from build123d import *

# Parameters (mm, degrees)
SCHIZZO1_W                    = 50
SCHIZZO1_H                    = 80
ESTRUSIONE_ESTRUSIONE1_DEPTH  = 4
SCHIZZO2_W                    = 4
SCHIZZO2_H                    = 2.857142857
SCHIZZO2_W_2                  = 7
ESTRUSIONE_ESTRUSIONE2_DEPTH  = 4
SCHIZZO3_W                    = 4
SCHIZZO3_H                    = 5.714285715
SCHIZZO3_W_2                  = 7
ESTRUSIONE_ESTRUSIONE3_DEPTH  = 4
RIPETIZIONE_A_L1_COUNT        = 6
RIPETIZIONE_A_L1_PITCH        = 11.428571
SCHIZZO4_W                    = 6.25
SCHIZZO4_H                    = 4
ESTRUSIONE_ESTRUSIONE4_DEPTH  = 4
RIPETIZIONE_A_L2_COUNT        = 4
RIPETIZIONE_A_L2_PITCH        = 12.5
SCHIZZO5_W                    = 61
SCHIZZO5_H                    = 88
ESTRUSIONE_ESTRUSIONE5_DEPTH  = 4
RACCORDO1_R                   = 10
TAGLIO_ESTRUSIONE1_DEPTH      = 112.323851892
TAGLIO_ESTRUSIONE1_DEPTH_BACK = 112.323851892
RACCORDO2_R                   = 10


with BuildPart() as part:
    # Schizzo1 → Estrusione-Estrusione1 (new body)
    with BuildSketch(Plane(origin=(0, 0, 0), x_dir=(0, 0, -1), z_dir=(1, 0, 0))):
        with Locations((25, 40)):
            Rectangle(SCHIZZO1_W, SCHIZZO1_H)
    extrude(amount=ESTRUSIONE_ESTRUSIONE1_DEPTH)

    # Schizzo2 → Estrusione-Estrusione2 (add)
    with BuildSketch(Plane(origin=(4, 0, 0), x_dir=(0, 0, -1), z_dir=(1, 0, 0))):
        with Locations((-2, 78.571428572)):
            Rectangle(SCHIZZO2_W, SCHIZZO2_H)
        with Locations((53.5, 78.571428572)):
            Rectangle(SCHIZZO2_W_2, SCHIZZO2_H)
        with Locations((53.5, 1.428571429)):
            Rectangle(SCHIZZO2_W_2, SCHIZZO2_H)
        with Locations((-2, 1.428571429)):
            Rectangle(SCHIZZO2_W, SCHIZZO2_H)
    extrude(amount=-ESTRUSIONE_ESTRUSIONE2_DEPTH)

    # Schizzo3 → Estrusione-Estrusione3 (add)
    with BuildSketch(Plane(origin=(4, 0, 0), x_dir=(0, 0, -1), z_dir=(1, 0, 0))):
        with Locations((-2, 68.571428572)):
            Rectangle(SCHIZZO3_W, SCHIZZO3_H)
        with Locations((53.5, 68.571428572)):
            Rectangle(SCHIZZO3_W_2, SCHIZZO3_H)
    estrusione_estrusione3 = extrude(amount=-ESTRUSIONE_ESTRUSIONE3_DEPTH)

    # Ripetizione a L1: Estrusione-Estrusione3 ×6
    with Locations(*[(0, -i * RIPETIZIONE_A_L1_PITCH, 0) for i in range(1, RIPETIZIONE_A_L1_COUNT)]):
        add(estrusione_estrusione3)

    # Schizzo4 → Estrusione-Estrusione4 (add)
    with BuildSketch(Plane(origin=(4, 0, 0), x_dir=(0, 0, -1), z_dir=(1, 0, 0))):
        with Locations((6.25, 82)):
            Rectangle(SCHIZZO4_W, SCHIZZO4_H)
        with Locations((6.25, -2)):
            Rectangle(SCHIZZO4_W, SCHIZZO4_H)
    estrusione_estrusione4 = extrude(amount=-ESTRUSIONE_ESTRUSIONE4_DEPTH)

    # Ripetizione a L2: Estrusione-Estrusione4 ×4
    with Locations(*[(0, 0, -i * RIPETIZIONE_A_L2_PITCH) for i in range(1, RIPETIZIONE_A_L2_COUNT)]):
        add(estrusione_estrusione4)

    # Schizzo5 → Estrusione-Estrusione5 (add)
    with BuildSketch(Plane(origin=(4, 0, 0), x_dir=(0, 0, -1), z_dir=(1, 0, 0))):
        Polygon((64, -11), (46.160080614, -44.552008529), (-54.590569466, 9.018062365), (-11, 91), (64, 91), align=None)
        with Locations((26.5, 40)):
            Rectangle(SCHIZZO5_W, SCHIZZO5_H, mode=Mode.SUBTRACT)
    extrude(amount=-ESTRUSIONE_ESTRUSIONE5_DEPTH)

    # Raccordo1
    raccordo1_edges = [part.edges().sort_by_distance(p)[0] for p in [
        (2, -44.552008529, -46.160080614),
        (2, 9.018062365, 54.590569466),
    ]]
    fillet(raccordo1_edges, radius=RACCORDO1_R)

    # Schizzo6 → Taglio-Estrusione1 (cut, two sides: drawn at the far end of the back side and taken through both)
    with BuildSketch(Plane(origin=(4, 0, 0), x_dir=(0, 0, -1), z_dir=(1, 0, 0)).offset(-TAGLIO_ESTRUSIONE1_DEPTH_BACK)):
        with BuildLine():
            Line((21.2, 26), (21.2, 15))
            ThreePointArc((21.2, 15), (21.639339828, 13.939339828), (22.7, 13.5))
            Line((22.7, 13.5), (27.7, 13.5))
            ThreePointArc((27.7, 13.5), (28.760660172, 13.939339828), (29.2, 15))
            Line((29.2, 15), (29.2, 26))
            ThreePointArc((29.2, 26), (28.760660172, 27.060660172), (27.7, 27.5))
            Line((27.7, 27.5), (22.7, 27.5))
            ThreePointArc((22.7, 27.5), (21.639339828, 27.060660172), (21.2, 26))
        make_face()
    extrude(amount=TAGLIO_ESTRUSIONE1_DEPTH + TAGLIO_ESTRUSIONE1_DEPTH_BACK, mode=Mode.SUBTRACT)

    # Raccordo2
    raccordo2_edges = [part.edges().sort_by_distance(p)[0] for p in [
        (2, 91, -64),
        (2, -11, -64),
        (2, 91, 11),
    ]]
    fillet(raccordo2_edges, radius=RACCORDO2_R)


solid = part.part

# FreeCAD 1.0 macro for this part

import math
import FreeCAD as App
import Part
import Sketcher
Q = App.Units.Quantity


def edges_at(feature, points):
    """Names of the edges that pass closest to the given points."""
    edges = feature.Shape.Edges
    near = lambda p: min(range(len(edges)), key=lambda i: edges[i].distToShape(Part.Vertex(*p))[0])
    return sorted({f"Edge{near(p) + 1}" for p in points})


def add_polygon(sketch, points):
    """Adds a closed chain of lines whose ends are joined by coincident constraints."""
    first, n = sketch.GeometryCount, len(points)
    for a, b in zip(points, points[1:] + points[:1]):
        sketch.addGeometry(Part.LineSegment(App.Vector(*a, 0), App.Vector(*b, 0)), False)
    for i in range(n):
        sketch.addConstraint(Sketcher.Constraint("Coincident", first + i, 2, first + (i + 1) % n, 1))

doc = App.newDocument("Part")
params = doc.addObject("Spreadsheet::Sheet", "Params")
for row, (alias, value) in enumerate([
    ("sketch1_width", "80 mm"),
    ("sketch1_height", "50 mm"),
    ("pad1_length", "4 mm"),
    ("sketch2_height", "4 mm"),
    ("sketch2_height2", "7 mm"),
    ("pad2_length", "4 mm"),
    ("sketch3_height", "4 mm"),
    ("sketch3_height2", "7 mm"),
    ("pad3_length", "4 mm"),
    ("linearpattern_pitch", "11.428571 mm"),
    ("sketch4_width", "4 mm"),
    ("sketch4_height", "6.25 mm"),
    ("pad4_length", "4 mm"),
    ("linearpattern2_pitch", "12.5 mm"),
    ("sketch5_width", "102 mm"),
    ("sketch5_width2", "88 mm"),
    ("sketch5_height", "75 mm"),
    ("sketch5_height2", "61 mm"),
    ("sketch5_length", "38 mm"),
    ("pad5_length", "4 mm"),
    ("fillet_radius", "10 mm"),
    ("sketch6_radius", "1.5 mm"),
    ("sketch6_width", "11 mm"),
    ("sketch6_height", "5 mm"),
    ("fillet2_radius", "10 mm"),
], start=1):
    params.set(f"A{row}", alias)
    params.set(f"B{row}", "=" + value)
    params.setAlias(f"B{row}", alias)

body = doc.addObject("PartDesign::Body", "Body")

# Sketch on YZ plane
sketch1 = body.newObject("Sketcher::SketchObject", "Sketch")
sketch1.AttachmentSupport = (doc.getObject("YZ_Plane"), [""])
sketch1.MapMode = "FlatFace"
add_polygon(sketch1, [(80, 0), (0, 0), (0, -50), (80, -50)])  # lines 0-3
sketch1.addConstraint(Sketcher.Constraint("Horizontal", 0))
sketch1.addConstraint(Sketcher.Constraint("Vertical", 1))
sketch1.addConstraint(Sketcher.Constraint("Horizontal", 2))
sketch1.addConstraint(Sketcher.Constraint("Vertical", 3))
sketch1.addConstraint(Sketcher.Constraint("Coincident", 0, 2, -1, 1))
sketch1.addConstraint(Sketcher.Constraint("DistanceX", 0, 2, 0, 1, Q("80 mm")))
sketch1.addConstraint(Sketcher.Constraint("DistanceY", 1, 2, 1, 1, Q("50 mm")))
sketch1.setExpression("Constraints[9]", "Params.sketch1_width")
sketch1.setExpression("Constraints[10]", "Params.sketch1_height")
pad1 = body.newObject("PartDesign::Pad", "Pad")
pad1.Profile = sketch1
pad1.setExpression("Length", "Params.pad1_length")

# Sketch on YZ plane
sketch2 = body.newObject("Sketcher::SketchObject", "Sketch001")
sketch2.AttachmentSupport = (doc.getObject("YZ_Plane"), [""])
sketch2.MapMode = "FlatFace"
sketch2.AttachmentOffset = App.Placement(App.Vector(0, 0, 4), App.Rotation())
add_polygon(sketch2, [(80, 4), (77.1, 4), (77.1, 0), (80, 0)])  # lines 0-3
add_polygon(sketch2, [(80, -50), (77.1, -50), (77.1, -57), (80, -57)])  # lines 4-7
add_polygon(sketch2, [(2.9, -50), (0, -50), (0, -57), (2.9, -57)])  # lines 8-11
add_polygon(sketch2, [(2.9, 4), (0, 4), (0, 0), (2.9, 0)])  # lines 12-15
sketch2.addConstraint(Sketcher.Constraint("Horizontal", 0))
sketch2.addConstraint(Sketcher.Constraint("Vertical", 1))
sketch2.addConstraint(Sketcher.Constraint("Horizontal", 2))
sketch2.addConstraint(Sketcher.Constraint("Vertical", 3))
sketch2.addConstraint(Sketcher.Constraint("Horizontal", 4))
sketch2.addConstraint(Sketcher.Constraint("Vertical", 5))
sketch2.addConstraint(Sketcher.Constraint("Horizontal", 6))
sketch2.addConstraint(Sketcher.Constraint("Vertical", 7))
sketch2.addConstraint(Sketcher.Constraint("Horizontal", 8))
sketch2.addConstraint(Sketcher.Constraint("Vertical", 9))
sketch2.addConstraint(Sketcher.Constraint("Horizontal", 10))
sketch2.addConstraint(Sketcher.Constraint("Vertical", 11))
sketch2.addConstraint(Sketcher.Constraint("Horizontal", 12))
sketch2.addConstraint(Sketcher.Constraint("Vertical", 13))
sketch2.addConstraint(Sketcher.Constraint("Horizontal", 14))
sketch2.addConstraint(Sketcher.Constraint("Vertical", 15))
sketch2.addConstraint(Sketcher.Constraint("Coincident", 13, 2, -1, 1))
sketch2.addConstraint(Sketcher.Constraint("PointOnObject", 1, 2, -1))
sketch2.addConstraint(Sketcher.Constraint("PointOnObject", 8, 2, -2))
sketch2.addConstraint(Sketcher.Constraint("Horizontal", 7, 2, 8, 2))
sketch2.addConstraint(Sketcher.Constraint("Horizontal", 6, 2, 9, 2))
sketch2.addConstraint(Sketcher.Constraint("Horizontal", 3, 2, 12, 2))
sketch2.addConstraint(Sketcher.Constraint("Vertical", 1, 2, 4, 2))
sketch2.addConstraint(Sketcher.Constraint("Vertical", 3, 2, 6, 2))
sketch2.addConstraint(Sketcher.Constraint("Vertical", 11, 2, 14, 2))
sketch2.addConstraint(Sketcher.Constraint("Equal", 6, 8))
sketch2.addConstraint(Sketcher.Constraint("DistanceY", 1, 2, 1, 1, Q("4 mm")))
sketch2.addConstraint(Sketcher.Constraint("DistanceY", 5, 2, 5, 1, Q("7 mm")))
sketch2.addConstraint(Sketcher.Constraint("DistanceX", -1, 1, 2, 2, Q("80 mm")))
sketch2.addConstraint(Sketcher.Constraint("DistanceY", 4, 2, -1, 1, Q("50 mm")))
sketch2.addConstraint(Sketcher.Constraint("DistanceX", 0, 2, 0, 1, Q("2.857143 mm")))
sketch2.setExpression("Constraints[42]", "Params.sketch2_height")
sketch2.setExpression("Constraints[43]", "Params.sketch2_height2")
pad2 = body.newObject("PartDesign::Pad", "Pad001")
pad2.Profile = sketch2
pad2.setExpression("Length", "Params.pad2_length")
pad2.Reversed = True

# Sketch on YZ plane
sketch3 = body.newObject("Sketcher::SketchObject", "Sketch002")
sketch3.AttachmentSupport = (doc.getObject("YZ_Plane"), [""])
sketch3.MapMode = "FlatFace"
sketch3.AttachmentOffset = App.Placement(App.Vector(0, 0, 4), App.Rotation())
add_polygon(sketch3, [(71.4, 4), (65.7, 4), (65.7, 0), (71.4, 0)])  # lines 0-3
add_polygon(sketch3, [(71.4, -50), (65.7, -50), (65.7, -57), (71.4, -57)])  # lines 4-7
sketch3.addConstraint(Sketcher.Constraint("Horizontal", 0))
sketch3.addConstraint(Sketcher.Constraint("Vertical", 1))
sketch3.addConstraint(Sketcher.Constraint("Horizontal", 2))
sketch3.addConstraint(Sketcher.Constraint("Vertical", 3))
sketch3.addConstraint(Sketcher.Constraint("Horizontal", 4))
sketch3.addConstraint(Sketcher.Constraint("Vertical", 5))
sketch3.addConstraint(Sketcher.Constraint("Horizontal", 6))
sketch3.addConstraint(Sketcher.Constraint("Vertical", 7))
sketch3.addConstraint(Sketcher.Constraint("PointOnObject", 1, 2, -1))
sketch3.addConstraint(Sketcher.Constraint("Vertical", 1, 2, 4, 2))
sketch3.addConstraint(Sketcher.Constraint("Vertical", 3, 2, 6, 2))
sketch3.addConstraint(Sketcher.Constraint("DistanceY", 1, 2, 1, 1, Q("4 mm")))
sketch3.addConstraint(Sketcher.Constraint("DistanceY", 5, 2, 5, 1, Q("7 mm")))
sketch3.addConstraint(Sketcher.Constraint("DistanceY", 4, 2, -1, 1, Q("50 mm")))
sketch3.addConstraint(Sketcher.Constraint("DistanceX", 0, 2, 0, 1, Q("5.714286 mm")))
sketch3.addConstraint(Sketcher.Constraint("DistanceX", -1, 1, 2, 2, Q("71.428571 mm")))
sketch3.setExpression("Constraints[19]", "Params.sketch3_height")
sketch3.setExpression("Constraints[20]", "Params.sketch3_height2")
pad3 = body.newObject("PartDesign::Pad", "Pad002")
pad3.Profile = sketch3
pad3.setExpression("Length", "Params.pad3_length")
pad3.Reversed = True
doc.recompute()

linearpattern = body.newObject("PartDesign::LinearPattern", "LinearPattern")
linearpattern.Originals = [pad3]
linearpattern.Direction = (doc.getObject("Y_Axis"), [""])
linearpattern.Mode = "offset"
linearpattern.setExpression("Offset", "Params.linearpattern_pitch")
linearpattern.Occurrences = 6
linearpattern.Reversed = True
body.Tip = linearpattern

# Sketch on YZ plane
sketch4 = body.newObject("Sketcher::SketchObject", "Sketch003")
sketch4.AttachmentSupport = (doc.getObject("YZ_Plane"), [""])
sketch4.MapMode = "FlatFace"
sketch4.AttachmentOffset = App.Placement(App.Vector(0, 0, 4), App.Rotation())
add_polygon(sketch4, [(84, -3.1), (80, -3.1), (80, -9.4), (84, -9.4)])  # lines 0-3
add_polygon(sketch4, [(0, -3.1), (-4, -3.1), (-4, -9.4), (0, -9.4)])  # lines 4-7
sketch4.addConstraint(Sketcher.Constraint("Horizontal", 0))
sketch4.addConstraint(Sketcher.Constraint("Vertical", 1))
sketch4.addConstraint(Sketcher.Constraint("Horizontal", 2))
sketch4.addConstraint(Sketcher.Constraint("Vertical", 3))
sketch4.addConstraint(Sketcher.Constraint("Horizontal", 4))
sketch4.addConstraint(Sketcher.Constraint("Vertical", 5))
sketch4.addConstraint(Sketcher.Constraint("Horizontal", 6))
sketch4.addConstraint(Sketcher.Constraint("Vertical", 7))
sketch4.addConstraint(Sketcher.Constraint("PointOnObject", 6, 2, -2))
sketch4.addConstraint(Sketcher.Constraint("Horizontal", 3, 2, 4, 2))
sketch4.addConstraint(Sketcher.Constraint("Horizontal", 2, 2, 5, 2))
sketch4.addConstraint(Sketcher.Constraint("Equal", 2, 4))
sketch4.addConstraint(Sketcher.Constraint("DistanceX", 0, 2, 0, 1, Q("4 mm")))
sketch4.addConstraint(Sketcher.Constraint("DistanceX", -1, 1, 0, 2, Q("80 mm")))
sketch4.addConstraint(Sketcher.Constraint("DistanceY", 1, 2, 1, 1, Q("6.25 mm")))
sketch4.addConstraint(Sketcher.Constraint("DistanceY", 0, 2, -1, 1, Q("3.125 mm")))
sketch4.setExpression("Constraints[20]", "Params.sketch4_width")
sketch4.setExpression("Constraints[22]", "Params.sketch4_height")
pad4 = body.newObject("PartDesign::Pad", "Pad003")
pad4.Profile = sketch4
pad4.setExpression("Length", "Params.pad4_length")
pad4.Reversed = True
doc.recompute()

linearpattern2 = body.newObject("PartDesign::LinearPattern", "LinearPattern001")
linearpattern2.Originals = [pad4]
linearpattern2.Direction = (doc.getObject("Z_Axis"), [""])
linearpattern2.Mode = "offset"
linearpattern2.setExpression("Offset", "Params.linearpattern2_pitch")
linearpattern2.Occurrences = 4
linearpattern2.Reversed = True
body.Tip = linearpattern2

# Sketch on YZ plane
sketch5 = body.newObject("Sketcher::SketchObject", "Sketch004")
sketch5.AttachmentSupport = (doc.getObject("YZ_Plane"), [""])
sketch5.MapMode = "FlatFace"
sketch5.AttachmentOffset = App.Placement(App.Vector(0, 0, 4), App.Rotation())
add_polygon(sketch5, [(-45, -46), (-11, -64), (91, -64), (91, 11), (9, 55)])  # lines 0-4
add_polygon(sketch5, [(-4, 4), (84, 4), (84, -57), (-4, -57)])  # lines 5-8
sketch5.addConstraint(Sketcher.Constraint("Horizontal", 1))
sketch5.addConstraint(Sketcher.Constraint("Vertical", 2))
sketch5.addConstraint(Sketcher.Constraint("Horizontal", 5))
sketch5.addConstraint(Sketcher.Constraint("Vertical", 6))
sketch5.addConstraint(Sketcher.Constraint("Horizontal", 7))
sketch5.addConstraint(Sketcher.Constraint("Vertical", 8))
sketch5.addConstraint(Sketcher.Constraint("Parallel", 0, 3))
sketch5.addConstraint(Sketcher.Constraint("Perpendicular", 3, 4))
sketch5.addConstraint(Sketcher.Constraint("DistanceX", 1, 1, 1, 2, Q("102 mm")))
sketch5.addConstraint(Sketcher.Constraint("DistanceX", 5, 1, 5, 2, Q("88 mm")))
sketch5.addConstraint(Sketcher.Constraint("DistanceY", 2, 1, 2, 2, Q("75 mm")))
sketch5.addConstraint(Sketcher.Constraint("DistanceY", 6, 2, 6, 1, Q("61 mm")))
sketch5.addConstraint(Sketcher.Constraint("Angle", 0, Q("-28 deg")))
sketch5.addConstraint(Sketcher.Constraint("Distance", 0, Q("38 mm")))
sketch5.addConstraint(Sketcher.Constraint("DistanceX", 0, 2, -1, 1, Q("11 mm")))
sketch5.addConstraint(Sketcher.Constraint("DistanceY", 0, 2, -1, 1, Q("64 mm")))
sketch5.addConstraint(Sketcher.Constraint("DistanceX", -1, 1, 5, 2, Q("84 mm")))
sketch5.addConstraint(Sketcher.Constraint("DistanceY", -1, 1, 5, 2, Q("4 mm")))
sketch5.setExpression("Constraints[17]", "Params.sketch5_width")
sketch5.setExpression("Constraints[18]", "Params.sketch5_width2")
sketch5.setExpression("Constraints[19]", "Params.sketch5_height")
sketch5.setExpression("Constraints[20]", "Params.sketch5_height2")
sketch5.setExpression("Constraints[22]", "Params.sketch5_length")
pad5 = body.newObject("PartDesign::Pad", "Pad004")
pad5.Profile = sketch5
pad5.setExpression("Length", "Params.pad5_length")
pad5.Reversed = True
doc.recompute()

fillet = body.newObject("PartDesign::Fillet", "Fillet")
fillet.Base = (pad5, edges_at(pad5, [(2, -44.552, -46.16), (2, 9.018, 54.591)]))
fillet.setExpression("Radius", "Params.fillet_radius")

# Sketch on YZ plane
sketch6 = body.newObject("Sketcher::SketchObject", "Sketch005")
sketch6.AttachmentSupport = (doc.getObject("YZ_Plane"), [""])
sketch6.MapMode = "FlatFace"
sketch6.AttachmentOffset = App.Placement(App.Vector(0, 0, 4), App.Rotation())
sketch6.addGeometry(Part.LineSegment(App.Vector(26, -21.2, 0), App.Vector(15, -21.2, 0)), False)
sketch6.addGeometry(Part.ArcOfCircle(Part.Circle(App.Vector(15, -22.7, 0), App.Vector(0, 0, 1), 1.5), math.radians(90), math.radians(180)), False)
sketch6.addGeometry(Part.LineSegment(App.Vector(13.5, -22.7, 0), App.Vector(13.5, -27.7, 0)), False)
sketch6.addGeometry(Part.ArcOfCircle(Part.Circle(App.Vector(15, -27.7, 0), App.Vector(0, 0, 1), 1.5), math.radians(180), math.radians(270)), False)
sketch6.addGeometry(Part.LineSegment(App.Vector(15, -29.2, 0), App.Vector(26, -29.2, 0)), False)
sketch6.addGeometry(Part.ArcOfCircle(Part.Circle(App.Vector(26, -27.7, 0), App.Vector(0, 0, 1), 1.5), math.radians(-90), math.radians(0)), False)
sketch6.addGeometry(Part.LineSegment(App.Vector(27.5, -27.7, 0), App.Vector(27.5, -22.7, 0)), False)
sketch6.addGeometry(Part.ArcOfCircle(Part.Circle(App.Vector(26, -22.7, 0), App.Vector(0, 0, 1), 1.5), math.radians(0), math.radians(90)), False)
sketch6.addConstraint(Sketcher.Constraint("Tangent", 0, 2, 1, 1))
sketch6.addConstraint(Sketcher.Constraint("Tangent", 1, 2, 2, 1))
sketch6.addConstraint(Sketcher.Constraint("Tangent", 2, 2, 3, 1))
sketch6.addConstraint(Sketcher.Constraint("Tangent", 3, 2, 4, 1))
sketch6.addConstraint(Sketcher.Constraint("Tangent", 4, 2, 5, 1))
sketch6.addConstraint(Sketcher.Constraint("Tangent", 5, 2, 6, 1))
sketch6.addConstraint(Sketcher.Constraint("Tangent", 6, 2, 7, 1))
sketch6.addConstraint(Sketcher.Constraint("Tangent", 7, 2, 0, 1))
sketch6.addConstraint(Sketcher.Constraint("Horizontal", 0))
sketch6.addConstraint(Sketcher.Constraint("Vertical", 2))
sketch6.addConstraint(Sketcher.Constraint("Horizontal", 4))
sketch6.addConstraint(Sketcher.Constraint("Vertical", 6))
sketch6.addConstraint(Sketcher.Constraint("Equal", 1, 3))
sketch6.addConstraint(Sketcher.Constraint("Equal", 3, 5))
sketch6.addConstraint(Sketcher.Constraint("Equal", 5, 7))
sketch6.addConstraint(Sketcher.Constraint("Radius", 1, Q("1.5 mm")))
sketch6.addConstraint(Sketcher.Constraint("DistanceX", 0, 2, 0, 1, Q("11 mm")))
sketch6.addConstraint(Sketcher.Constraint("DistanceY", 2, 2, 2, 1, Q("5 mm")))
sketch6.addConstraint(Sketcher.Constraint("DistanceX", -1, 1, 1, 3, Q("15 mm")))
sketch6.addConstraint(Sketcher.Constraint("DistanceY", 1, 3, -1, 1, Q("22.7 mm")))
sketch6.setExpression("Constraints[15]", "Params.sketch6_radius")
sketch6.setExpression("Constraints[16]", "Params.sketch6_width")
sketch6.setExpression("Constraints[17]", "Params.sketch6_height")
pocket1 = body.newObject("PartDesign::Pocket", "Pocket")
pocket1.Profile = sketch6
pocket1.Type = "ThroughAll"
pocket1.Midplane = True
doc.recompute()

fillet2 = body.newObject("PartDesign::Fillet", "Fillet001")
fillet2.Base = (pocket1, edges_at(pocket1, [(2, 91, -64), (2, -11, -64), (2, 91, 11)]))
fillet2.setExpression("Radius", "Params.fillet2_radius")

doc.recompute()
